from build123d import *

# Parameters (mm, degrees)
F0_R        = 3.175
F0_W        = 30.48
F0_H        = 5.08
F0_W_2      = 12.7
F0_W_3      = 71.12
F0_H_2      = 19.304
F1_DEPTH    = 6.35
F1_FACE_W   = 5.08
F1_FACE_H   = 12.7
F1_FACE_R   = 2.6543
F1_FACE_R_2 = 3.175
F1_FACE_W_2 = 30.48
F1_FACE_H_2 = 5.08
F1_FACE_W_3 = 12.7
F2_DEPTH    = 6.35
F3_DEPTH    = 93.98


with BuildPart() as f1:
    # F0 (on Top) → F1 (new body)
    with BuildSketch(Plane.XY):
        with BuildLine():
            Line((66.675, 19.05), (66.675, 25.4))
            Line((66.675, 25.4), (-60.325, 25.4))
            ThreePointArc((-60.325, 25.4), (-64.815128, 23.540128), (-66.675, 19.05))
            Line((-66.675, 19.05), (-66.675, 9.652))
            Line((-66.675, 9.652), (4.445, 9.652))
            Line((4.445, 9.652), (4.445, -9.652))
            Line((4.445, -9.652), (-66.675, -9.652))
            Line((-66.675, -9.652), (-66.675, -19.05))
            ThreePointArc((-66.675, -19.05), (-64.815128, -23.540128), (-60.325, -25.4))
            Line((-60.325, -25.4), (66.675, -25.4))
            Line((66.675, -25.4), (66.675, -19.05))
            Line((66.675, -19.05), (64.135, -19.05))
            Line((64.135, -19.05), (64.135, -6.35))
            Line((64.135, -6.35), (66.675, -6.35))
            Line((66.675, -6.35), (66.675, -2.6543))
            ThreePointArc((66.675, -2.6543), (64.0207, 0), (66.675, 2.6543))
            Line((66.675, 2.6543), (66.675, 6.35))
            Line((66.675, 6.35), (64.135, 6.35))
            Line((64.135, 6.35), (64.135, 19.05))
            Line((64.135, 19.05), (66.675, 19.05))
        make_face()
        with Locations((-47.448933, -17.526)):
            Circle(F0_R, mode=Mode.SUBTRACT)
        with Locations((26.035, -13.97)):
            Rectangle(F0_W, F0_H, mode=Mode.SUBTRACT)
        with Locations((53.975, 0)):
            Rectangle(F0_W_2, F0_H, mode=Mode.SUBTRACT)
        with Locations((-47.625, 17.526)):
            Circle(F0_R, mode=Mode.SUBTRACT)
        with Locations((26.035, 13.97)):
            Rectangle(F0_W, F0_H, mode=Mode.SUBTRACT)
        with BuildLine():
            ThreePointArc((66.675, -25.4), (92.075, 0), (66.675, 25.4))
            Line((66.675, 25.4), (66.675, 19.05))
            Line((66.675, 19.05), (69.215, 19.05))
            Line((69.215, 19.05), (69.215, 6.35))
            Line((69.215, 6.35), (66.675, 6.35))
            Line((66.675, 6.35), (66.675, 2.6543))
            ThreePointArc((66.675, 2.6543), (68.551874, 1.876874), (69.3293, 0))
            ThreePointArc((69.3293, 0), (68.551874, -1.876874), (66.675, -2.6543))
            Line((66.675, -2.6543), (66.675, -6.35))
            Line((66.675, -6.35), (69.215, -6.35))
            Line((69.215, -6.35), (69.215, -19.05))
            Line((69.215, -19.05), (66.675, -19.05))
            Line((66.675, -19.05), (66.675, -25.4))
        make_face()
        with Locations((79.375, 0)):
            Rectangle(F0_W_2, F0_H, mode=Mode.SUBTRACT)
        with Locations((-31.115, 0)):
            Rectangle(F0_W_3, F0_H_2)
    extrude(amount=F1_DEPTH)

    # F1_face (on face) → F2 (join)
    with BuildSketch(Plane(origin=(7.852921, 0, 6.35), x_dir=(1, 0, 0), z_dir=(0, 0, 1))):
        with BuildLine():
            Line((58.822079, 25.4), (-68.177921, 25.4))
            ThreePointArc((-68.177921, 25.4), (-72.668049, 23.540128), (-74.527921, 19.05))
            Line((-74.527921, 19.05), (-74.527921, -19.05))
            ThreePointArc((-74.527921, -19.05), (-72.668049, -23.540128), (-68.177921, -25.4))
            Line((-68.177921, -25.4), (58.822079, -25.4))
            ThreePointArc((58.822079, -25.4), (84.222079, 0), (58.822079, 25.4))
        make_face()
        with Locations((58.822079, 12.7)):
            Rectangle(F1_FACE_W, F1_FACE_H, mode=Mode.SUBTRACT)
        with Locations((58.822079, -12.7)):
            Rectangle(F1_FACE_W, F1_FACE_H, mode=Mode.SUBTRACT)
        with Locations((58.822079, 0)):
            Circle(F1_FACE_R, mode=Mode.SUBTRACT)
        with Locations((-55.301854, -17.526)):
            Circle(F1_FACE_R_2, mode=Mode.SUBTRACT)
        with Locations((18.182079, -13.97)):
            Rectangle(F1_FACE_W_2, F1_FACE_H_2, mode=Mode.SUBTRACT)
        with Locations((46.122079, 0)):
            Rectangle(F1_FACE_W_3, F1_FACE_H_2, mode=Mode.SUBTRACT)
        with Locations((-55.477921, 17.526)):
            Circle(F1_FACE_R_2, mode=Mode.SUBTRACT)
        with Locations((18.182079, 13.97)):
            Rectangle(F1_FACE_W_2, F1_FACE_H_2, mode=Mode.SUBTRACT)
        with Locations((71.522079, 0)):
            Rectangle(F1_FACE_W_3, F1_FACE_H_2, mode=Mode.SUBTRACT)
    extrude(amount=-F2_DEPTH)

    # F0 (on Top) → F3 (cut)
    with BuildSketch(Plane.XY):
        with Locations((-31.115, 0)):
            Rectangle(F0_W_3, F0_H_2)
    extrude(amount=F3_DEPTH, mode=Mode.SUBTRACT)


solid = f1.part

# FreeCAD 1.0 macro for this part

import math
import FreeCAD as App
import Part
import Sketcher
from FreeCAD import Vector
Q = App.Units.Quantity


def add_polygon(sketch, points):
    """Adds a closed chain of lines whose ends are joined by coincident constraints."""
    first, n = sketch.GeometryCount, len(points)
    for a, b in zip(points, points[1:] + points[:1]):
        sketch.addGeometry(Part.LineSegment(App.Vector(*a, 0), App.Vector(*b, 0)), False)
    for i in range(n):
        sketch.addConstraint(Sketcher.Constraint("Coincident", first + i, 2, first + (i + 1) % n, 1))

doc = App.newDocument("Part")
params = doc.addObject("Spreadsheet::Sheet", "Params")
for row, (alias, value) in enumerate([
    ("sketch1_radius", "1 in"),
    ("sketch1_diameter", "0.25 in"),
    ("sketch1_width", "5 in"),
    ("sketch1_radius2", "0.25 in"),
    ("sketch1_width2", "1.2 in"),
    ("pad1_length", "0.25 in"),
    ("sketch2_radius", "1 in"),
    ("sketch2_diameter", "0.25 in"),
    ("sketch2_width", "5 in"),
    ("sketch2_radius2", "0.25 in"),
    ("sketch2_diameter2", "0.209 in"),
    ("pad2_length", "0.25 in"),
    ("sketch3_width", "2.8 in"),
    ("sketch3_height", "0.76 in"),
    ("pocket1_length", "3.7 in"),
], start=1):
    params.set(f"A{row}", alias)
    params.set(f"B{row}", "=" + value)
    params.setAlias(f"B{row}", alias)

body = doc.addObject("PartDesign::Body", "Body")

# Sketch on XY plane
sketch1 = body.newObject("Sketcher::SketchObject", "Sketch")
sketch1.AttachmentSupport = (doc.getObject("XY_Plane"), [""])
sketch1.MapMode = "FlatFace"
sketch1.addGeometry(Part.LineSegment(Vector(66.7, 25.4, 0), Vector(-60.3, 25.4, 0)), False)  # 0
sketch1.addGeometry(Part.ArcOfCircle(Part.Circle(Vector(-60.3, 19, 0), Vector(0, 0, 1), 6.4), math.radians(90), math.radians(180)), False)  # 1
sketch1.addGeometry(Part.LineSegment(Vector(-66.7, 19.1, 0), Vector(-66.7, -19.1, 0)), False)  # 2
sketch1.addGeometry(Part.ArcOfCircle(Part.Circle(Vector(-60.3, -19, 0), Vector(0, 0, 1), 6.4), math.radians(-180), math.radians(-90)), False)  # 3
sketch1.addGeometry(Part.LineSegment(Vector(-60.3, -25.4, 0), Vector(66.7, -25.4, 0)), False)  # 4
sketch1.addGeometry(Part.ArcOfCircle(Part.Circle(Vector(66.7, 0, 0), Vector(0, 0, 1), 25.4), math.radians(-90), math.radians(90)), False)  # 5
sketch1.addGeometry(Part.Circle(Vector(-47.4, -17.5, 0), Vector(0, 0, 1), 3.2), False)  # 6
add_polygon(sketch1, [(41.3, -16.5), (10.8, -16.5), (10.8, -11.4), (41.3, -11.4)])  # lines 7-10
add_polygon(sketch1, [(64.1, -6.3), (69.2, -6.3), (69.2, -19.1), (64.1, -19.1)])  # lines 11-14
sketch1.addGeometry(Part.Circle(Vector(-47.6, 17.5, 0), Vector(0, 0, 1), 3.2), False)  # 15
add_polygon(sketch1, [(60.3, -2.5), (47.6, -2.5), (47.6, 2.5), (60.3, 2.5)])  # lines 16-19
sketch1.addGeometry(Part.ArcOfCircle(Part.Circle(Vector(66.7, 0, 0), Vector(0, 0, 1), 2.7), math.radians(90), math.radians(270)), False)  # 20
sketch1.addGeometry(Part.ArcOfCircle(Part.Circle(Vector(66.7, 0, 0), Vector(0, 0, 1), 2.7), math.radians(0), math.radians(90)), False)  # 21
sketch1.addGeometry(Part.ArcOfCircle(Part.Circle(Vector(66.7, 0, 0), Vector(0, 0, 1), 2.7), math.radians(-90), math.radians(0)), False)  # 22
add_polygon(sketch1, [(85.7, -2.5), (73, -2.5), (73, 2.5), (85.7, 2.5)])  # lines 23-26
add_polygon(sketch1, [(41.3, 11.4), (10.8, 11.4), (10.8, 16.5), (41.3, 16.5)])  # lines 27-30
add_polygon(sketch1, [(64.1, 19.1), (69.2, 19.1), (69.2, 6.3), (64.1, 6.3)])  # lines 31-34
sketch1.addConstraint([
    Sketcher.Constraint("Tangent", 0, 2, 1, 1),
    Sketcher.Constraint("Tangent", 1, 2, 2, 1),
    Sketcher.Constraint("Tangent", 2, 2, 3, 1),
    Sketcher.Constraint("Tangent", 3, 2, 4, 1),
    Sketcher.Constraint("Tangent", 4, 2, 5, 1),
    Sketcher.Constraint("Tangent", 5, 2, 0, 1),
    Sketcher.Constraint("Tangent", 20, 1, 21, 2),
    Sketcher.Constraint("Tangent", 21, 1, 22, 2),
    Sketcher.Constraint("Tangent", 22, 1, 20, 2),
    Sketcher.Constraint("Horizontal", 0),
    Sketcher.Constraint("Vertical", 2),
    Sketcher.Constraint("Horizontal", 4),
    Sketcher.Constraint("Horizontal", 7),
    Sketcher.Constraint("Vertical", 8),
    Sketcher.Constraint("Horizontal", 9),
    Sketcher.Constraint("Vertical", 10),
    Sketcher.Constraint("Horizontal", 11),
    Sketcher.Constraint("Vertical", 12),
    Sketcher.Constraint("Horizontal", 13),
    Sketcher.Constraint("Vertical", 14),
    Sketcher.Constraint("Horizontal", 16),
    Sketcher.Constraint("Vertical", 17),
    Sketcher.Constraint("Horizontal", 18),
    Sketcher.Constraint("Vertical", 19),
    Sketcher.Constraint("Horizontal", 23),
    Sketcher.Constraint("Vertical", 24),
    Sketcher.Constraint("Horizontal", 25),
    Sketcher.Constraint("Vertical", 26),
    Sketcher.Constraint("Horizontal", 27),
    Sketcher.Constraint("Vertical", 28),
    Sketcher.Constraint("Horizontal", 29),
    Sketcher.Constraint("Vertical", 30),
    Sketcher.Constraint("Horizontal", 31),
    Sketcher.Constraint("Vertical", 32),
    Sketcher.Constraint("Horizontal", 33),
    Sketcher.Constraint("Vertical", 34),
    Sketcher.Constraint("Coincident", 20, 3, 5, 3),
    Sketcher.Constraint("Equal", 1, 3),
    Sketcher.Constraint("Equal", 6, 15),
    Sketcher.Constraint("Symmetric", 20, 1, 22, 1, -1),
    Sketcher.Constraint("Symmetric", 8, 2, 27, 2, -1),
    Sketcher.Constraint("Symmetric", 10, 2, 29, 2, -1),
    Sketcher.Constraint("Symmetric", 12, 2, 31, 2, -1),
    Sketcher.Constraint("Symmetric", 14, 2, 33, 2, -1),
    Sketcher.Constraint("PointOnObject", 21, 1, -1),
    Sketcher.Constraint("Horizontal", 2, 2, 12, 2),
    Sketcher.Constraint("Horizontal", 19, 2, 23, 2),
    Sketcher.Constraint("Horizontal", 18, 2, 24, 2),
    Sketcher.Constraint("Vertical", 5, 2, 20, 1),
    Sketcher.Constraint("Equal", 18, 23),
    Sketcher.Constraint("Equal", 33, 8),
    Sketcher.Constraint("Equal", 25, 12),
    Sketcher.Constraint("Equal", 10, 17),
    Sketcher.Constraint("Radius", 5, Q("1 in")),
    Sketcher.Constraint("Diameter", 6, Q("0.25 in")),
    Sketcher.Constraint("DistanceX", 0, 2, 0, 1, Q("5 in")),
    Sketcher.Constraint("Radius", 1, Q("0.25 in")),
    Sketcher.Constraint("DistanceX", 7, 2, 7, 1, Q("1.2 in")),
    Sketcher.Constraint("DistanceX", 11, 1, 11, 2, Q("0.2 in")),
    Sketcher.Constraint("DistanceX", 16, 2, 16, 1, Q("0.5 in")),
    Sketcher.Constraint("DistanceX", 9, 2, 5, 3, Q("1 in")),
    Sketcher.Constraint("DistanceY", 16, 2, -1, 1, Q("0.1 in")),
    Sketcher.Constraint("Radius", 20, Q("0.1045 in")),
    Sketcher.Constraint("DistanceX", 1, 3, 15, 3, Q("0.5 in")),
    Sketcher.Constraint("DistanceX", 22, 3, 11, 2, Q("0.0999999 in")),
    Sketcher.Constraint("DistanceY", 8, 2, 27, 2, Q("0.9 in")),
    Sketcher.Constraint("DistanceY", 6, 3, -1, 1, Q("0.69 in")),
    Sketcher.Constraint("DistanceY", -1, 1, 15, 3, Q("0.69 in")),
    Sketcher.Constraint("DistanceX", 9, 2, 16, 2, Q("0.25 in")),
    Sketcher.Constraint("DistanceX", 11, 2, 23, 2, Q("0.15 in")),
    Sketcher.Constraint("DistanceX", 1, 3, -1, 1, Q("2.375 in")),
    Sketcher.Constraint("DistanceX", 6, 3, -1, 1, Q("47.448933 mm")),
])
sketch1.setExpression("Constraints[77]", "Params.sketch1_radius")
sketch1.setExpression("Constraints[78]", "Params.sketch1_diameter")
sketch1.setExpression("Constraints[79]", "Params.sketch1_width")
sketch1.setExpression("Constraints[80]", "Params.sketch1_radius2")
sketch1.setExpression("Constraints[81]", "Params.sketch1_width2")
pad1 = body.newObject("PartDesign::Pad", "Pad")
pad1.Profile = sketch1
pad1.setExpression("Length", "Params.pad1_length")

# Sketch on XY plane
sketch2 = body.newObject("Sketcher::SketchObject", "Sketch001")
sketch2.AttachmentSupport = (doc.getObject("XY_Plane"), [""])
sketch2.MapMode = "FlatFace"
sketch2.AttachmentOffset = App.Placement(Vector(0, 0, 0.25 * 25.4), App.Rotation())
sketch2.addGeometry(Part.LineSegment(Vector(66.7, 25.4, 0), Vector(-60.3, 25.4, 0)), False)  # 0
sketch2.addGeometry(Part.ArcOfCircle(Part.Circle(Vector(-60.3, 19, 0), Vector(0, 0, 1), 6.4), math.radians(90), math.radians(180)), False)  # 1
sketch2.addGeometry(Part.LineSegment(Vector(-66.7, 19.1, 0), Vector(-66.7, -19.1, 0)), False)  # 2
sketch2.addGeometry(Part.ArcOfCircle(Part.Circle(Vector(-60.3, -19, 0), Vector(0, 0, 1), 6.4), math.radians(-180), math.radians(-90)), False)  # 3
sketch2.addGeometry(Part.LineSegment(Vector(-60.3, -25.4, 0), Vector(66.7, -25.4, 0)), False)  # 4
sketch2.addGeometry(Part.ArcOfCircle(Part.Circle(Vector(66.7, 0, 0), Vector(0, 0, 1), 25.4), math.radians(-90), math.radians(90)), False)  # 5
sketch2.addGeometry(Part.Circle(Vector(-47.4, -17.5, 0), Vector(0, 0, 1), 3.2), False)  # 6
add_polygon(sketch2, [(41.3, -16.5), (10.8, -16.5), (10.8, -11.4), (41.3, -11.4)])  # lines 7-10
add_polygon(sketch2, [(69.2, -19.1), (64.1, -19.1), (64.1, -6.3), (69.2, -6.3)])  # lines 11-14
sketch2.addGeometry(Part.Circle(Vector(-47.6, 17.5, 0), Vector(0, 0, 1), 3.2), False)  # 15
add_polygon(sketch2, [(60.3, -2.5), (47.6, -2.5), (47.6, 2.5), (60.3, 2.5)])  # lines 16-19
sketch2.addGeometry(Part.Circle(Vector(66.7, 0, 0), Vector(0, 0, 1), 2.7), False)  # 20
add_polygon(sketch2, [(85.7, -2.5), (73, -2.5), (73, 2.5), (85.7, 2.5)])  # lines 21-24
add_polygon(sketch2, [(41.3, 11.4), (10.8, 11.4), (10.8, 16.5), (41.3, 16.5)])  # lines 25-28
add_polygon(sketch2, [(69.2, 6.3), (64.1, 6.3), (64.1, 19.1), (69.2, 19.1)])  # lines 29-32
sketch2.addConstraint([
    Sketcher.Constraint("Tangent", 0, 2, 1, 1),
    Sketcher.Constraint("Tangent", 1, 2, 2, 1),
    Sketcher.Constraint("Tangent", 2, 2, 3, 1),
    Sketcher.Constraint("Tangent", 3, 2, 4, 1),
    Sketcher.Constraint("Tangent", 4, 2, 5, 1),
    Sketcher.Constraint("Tangent", 5, 2, 0, 1),
    Sketcher.Constraint("Horizontal", 0),
    Sketcher.Constraint("Vertical", 2),
    Sketcher.Constraint("Horizontal", 4),
    Sketcher.Constraint("Horizontal", 7),
    Sketcher.Constraint("Vertical", 8),
    Sketcher.Constraint("Horizontal", 9),
    Sketcher.Constraint("Vertical", 10),
    Sketcher.Constraint("Horizontal", 11),
    Sketcher.Constraint("Vertical", 12),
    Sketcher.Constraint("Horizontal", 13),
    Sketcher.Constraint("Vertical", 14),
    Sketcher.Constraint("Horizontal", 16),
    Sketcher.Constraint("Vertical", 17),
    Sketcher.Constraint("Horizontal", 18),
    Sketcher.Constraint("Vertical", 19),
    Sketcher.Constraint("Horizontal", 21),
    Sketcher.Constraint("Vertical", 22),
    Sketcher.Constraint("Horizontal", 23),
    Sketcher.Constraint("Vertical", 24),
    Sketcher.Constraint("Horizontal", 25),
    Sketcher.Constraint("Vertical", 26),
    Sketcher.Constraint("Horizontal", 27),
    Sketcher.Constraint("Vertical", 28),
    Sketcher.Constraint("Horizontal", 29),
    Sketcher.Constraint("Vertical", 30),
    Sketcher.Constraint("Horizontal", 31),
    Sketcher.Constraint("Vertical", 32),
    Sketcher.Constraint("Coincident", 20, 3, 5, 3),
    Sketcher.Constraint("Equal", 1, 3),
    Sketcher.Constraint("Equal", 6, 15),
    Sketcher.Constraint("Symmetric", 8, 2, 25, 2, -1),
    Sketcher.Constraint("Symmetric", 10, 2, 27, 2, -1),
    Sketcher.Constraint("Symmetric", 12, 2, 29, 2, -1),
    Sketcher.Constraint("Symmetric", 14, 2, 31, 2, -1),
    Sketcher.Constraint("PointOnObject", 5, 3, -1),
    Sketcher.Constraint("Horizontal", 2, 2, 11, 2),
    Sketcher.Constraint("Horizontal", 19, 2, 21, 2),
    Sketcher.Constraint("Horizontal", 18, 2, 22, 2),
    Sketcher.Constraint("Equal", 18, 21),
    Sketcher.Constraint("Equal", 31, 8),
    Sketcher.Constraint("Equal", 23, 12),
    Sketcher.Constraint("Equal", 10, 17),
    Sketcher.Constraint("Radius", 5, Q("1 in")),
    Sketcher.Constraint("Diameter", 6, Q("0.25 in")),
    Sketcher.Constraint("DistanceX", 0, 2, 0, 1, Q("5 in")),
    Sketcher.Constraint("Radius", 1, Q("0.25 in")),
    Sketcher.Constraint("Diameter", 20, Q("0.209 in")),
    Sketcher.Constraint("DistanceX", 7, 2, 7, 1, Q("1.2 in")),
    Sketcher.Constraint("DistanceX", 11, 2, 11, 1, Q("0.2 in")),
    Sketcher.Constraint("DistanceX", 16, 2, 16, 1, Q("0.5 in")),
    Sketcher.Constraint("DistanceX", 9, 2, 5, 3, Q("1 in")),
    Sketcher.Constraint("DistanceY", 16, 2, -1, 1, Q("0.1 in")),
    Sketcher.Constraint("DistanceX", 1, 3, 15, 3, Q("0.5 in")),
    Sketcher.Constraint("DistanceX", 11, 2, 4, 2, Q("0.1 in")),
    Sketcher.Constraint("DistanceY", 11, 2, 10, 2, Q("0.1 in")),
    Sketcher.Constraint("DistanceX", 19, 2, 21, 2, Q("0.5 in")),
    Sketcher.Constraint("DistanceY", 6, 3, -1, 1, Q("0.69 in")),
    Sketcher.Constraint("DistanceY", -1, 1, 15, 3, Q("0.69 in")),
    Sketcher.Constraint("DistanceX", 9, 2, 16, 2, Q("0.25 in")),
    Sketcher.Constraint("DistanceX", 1, 3, -1, 1, Q("2.375 in")),
    Sketcher.Constraint("DistanceX", 6, 3, -1, 1, Q("47.448933 mm")),
])
sketch2.setExpression("Constraints[72]", "Params.sketch2_radius")
sketch2.setExpression("Constraints[73]", "Params.sketch2_diameter")
sketch2.setExpression("Constraints[74]", "Params.sketch2_width")
sketch2.setExpression("Constraints[75]", "Params.sketch2_radius2")
sketch2.setExpression("Constraints[76]", "Params.sketch2_diameter2")
pad2 = body.newObject("PartDesign::Pad", "Pad001")
pad2.Profile = sketch2
pad2.setExpression("Length", "Params.pad2_length")
pad2.Reversed = True

# Sketch on XY plane
sketch3 = body.newObject("Sketcher::SketchObject", "Sketch002")
sketch3.AttachmentSupport = (doc.getObject("XY_Plane"), [""])
sketch3.MapMode = "FlatFace"
add_polygon(sketch3, [(-67, 10), (-67, -10), (4, -10), (4, 10)])  # lines 0-3
sketch3.addConstraint([
    Sketcher.Constraint("Vertical", 0),
    Sketcher.Constraint("Horizontal", 1),
    Sketcher.Constraint("Vertical", 2),
    Sketcher.Constraint("Horizontal", 3),
    Sketcher.Constraint("DistanceX", 1, 1, 1, 2, Q("2.8 in")),
    Sketcher.Constraint("DistanceY", 0, 2, 0, 1, Q("0.76 in")),
    Sketcher.Constraint("DistanceY", 0, 2, -1, 1, Q("0.38 in")),
    Sketcher.Constraint("DistanceX", 0, 2, -1, 1, Q("2.625 in")),
])
sketch3.setExpression("Constraints[8]", "Params.sketch3_width")
sketch3.setExpression("Constraints[9]", "Params.sketch3_height")
pocket1 = body.newObject("PartDesign::Pocket", "Pocket")
pocket1.Profile = sketch3
pocket1.setExpression("Length", "Params.pocket1_length")
pocket1.Reversed = True

doc.recompute()
